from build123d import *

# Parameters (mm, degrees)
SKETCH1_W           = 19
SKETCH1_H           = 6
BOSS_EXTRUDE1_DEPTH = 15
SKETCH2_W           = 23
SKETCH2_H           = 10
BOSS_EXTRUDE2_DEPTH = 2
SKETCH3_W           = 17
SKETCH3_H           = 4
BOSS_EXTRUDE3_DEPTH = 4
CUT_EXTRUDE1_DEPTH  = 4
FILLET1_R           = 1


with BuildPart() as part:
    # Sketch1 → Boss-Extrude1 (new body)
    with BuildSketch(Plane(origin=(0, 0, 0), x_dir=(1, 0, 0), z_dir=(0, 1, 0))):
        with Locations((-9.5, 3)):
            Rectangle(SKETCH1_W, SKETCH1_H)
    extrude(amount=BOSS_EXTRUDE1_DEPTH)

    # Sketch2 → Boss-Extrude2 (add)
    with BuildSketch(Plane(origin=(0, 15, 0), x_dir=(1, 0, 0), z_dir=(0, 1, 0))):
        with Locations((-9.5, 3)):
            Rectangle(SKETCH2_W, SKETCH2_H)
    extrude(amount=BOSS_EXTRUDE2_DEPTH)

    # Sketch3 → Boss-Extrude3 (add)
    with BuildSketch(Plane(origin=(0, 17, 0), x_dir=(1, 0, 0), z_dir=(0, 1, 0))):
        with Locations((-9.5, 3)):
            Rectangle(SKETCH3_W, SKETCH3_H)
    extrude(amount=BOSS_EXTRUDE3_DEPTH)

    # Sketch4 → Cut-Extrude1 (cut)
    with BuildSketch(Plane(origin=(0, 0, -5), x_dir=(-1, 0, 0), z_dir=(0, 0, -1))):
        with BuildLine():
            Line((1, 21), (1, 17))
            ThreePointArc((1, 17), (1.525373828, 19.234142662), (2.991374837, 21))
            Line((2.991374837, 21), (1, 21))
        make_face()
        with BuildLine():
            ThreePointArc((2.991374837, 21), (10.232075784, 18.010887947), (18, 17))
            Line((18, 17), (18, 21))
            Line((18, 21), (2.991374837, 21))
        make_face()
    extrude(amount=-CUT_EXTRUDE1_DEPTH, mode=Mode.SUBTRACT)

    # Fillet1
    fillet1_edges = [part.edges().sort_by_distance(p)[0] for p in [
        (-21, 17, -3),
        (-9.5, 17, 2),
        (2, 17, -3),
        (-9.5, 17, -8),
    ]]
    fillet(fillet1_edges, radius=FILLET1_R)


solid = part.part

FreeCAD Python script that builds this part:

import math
import FreeCAD as App
import Part
import Sketcher
Q = App.Units.Quantity


def edges_at(feature, points):
    """Names of the edges that pass closest to the given points."""
    edges = feature.Shape.Edges
    near = lambda p: min(range(len(edges)), key=lambda i: edges[i].distToShape(Part.Vertex(*p))[0])
    return sorted({f"Edge{near(p) + 1}" for p in points})

doc = App.newDocument("Part")
params = doc.addObject("Spreadsheet::Sheet", "Params")
for row, (alias, value) in enumerate([
    ("sketch1_width", "19 mm"),
    ("sketch1_height", "6 mm"),
    ("pad1_length", "15 mm"),
    ("sketch2_width", "23 mm"),
    ("sketch2_height", "10 mm"),
    ("pad2_length", "2 mm"),
    ("sketch3_width", "17 mm"),
    ("sketch3_height", "4 mm"),
    ("pad3_length", "4 mm"),
    ("sketch4_height", "4 mm"),
    ("pocket1_length", "4 mm"),
    ("fillet_radius", "1 mm"),
], start=1):
    params.set(f"A{row}", alias)
    params.set(f"B{row}", "=" + value)
    params.setAlias(f"B{row}", alias)

body = doc.addObject("PartDesign::Body", "Body")

sketch1 = doc.addObject("Sketcher::SketchObject", "Sketch")
body.addObject(sketch1)
sketch1.AttachmentSupport = (doc.XZ_Plane, [""])
sketch1.MapMode = "FlatFace"
sketch1.addGeometry(Part.LineSegment(App.Vector(-19, -6, 0), App.Vector(-19, 0, 0)), False)
sketch1.addGeometry(Part.LineSegment(App.Vector(-19, 0, 0), App.Vector(0, 0, 0)), False)
sketch1.addGeometry(Part.LineSegment(App.Vector(0, 0, 0), App.Vector(0, -6, 0)), False)
sketch1.addGeometry(Part.LineSegment(App.Vector(0, -6, 0), App.Vector(-19, -6, 0)), False)
sketch1.addConstraint(Sketcher.Constraint("Coincident", 0, 2, 1, 1))
sketch1.addConstraint(Sketcher.Constraint("Coincident", 1, 2, 2, 1))
sketch1.addConstraint(Sketcher.Constraint("Coincident", 2, 2, 3, 1))
sketch1.addConstraint(Sketcher.Constraint("Coincident", 3, 2, 0, 1))
sketch1.addConstraint(Sketcher.Constraint("Vertical", 0))
sketch1.addConstraint(Sketcher.Constraint("Horizontal", 1))
sketch1.addConstraint(Sketcher.Constraint("Vertical", 2))
sketch1.addConstraint(Sketcher.Constraint("Horizontal", 3))
sketch1.addConstraint(Sketcher.Constraint("Coincident", 1, 2, -1, 1))
sketch1.addConstraint(Sketcher.Constraint("DistanceX", 1, 1, 1, 2, Q("19 mm")))
sketch1.addConstraint(Sketcher.Constraint("DistanceY", 0, 1, 0, 2, Q("6 mm")))
sketch1.setExpression("Constraints[9]", "Params.sketch1_width")
sketch1.setExpression("Constraints[10]", "Params.sketch1_height")
pad1 = doc.addObject("PartDesign::Pad", "Pad")
body.addObject(pad1)
pad1.Profile = sketch1
pad1.setExpression("Length", "Params.pad1_length")
pad1.Reversed = True

sketch2 = doc.addObject("Sketcher::SketchObject", "Sketch001")
body.addObject(sketch2)
sketch2.AttachmentSupport = (doc.XZ_Plane, [""])
sketch2.MapMode = "FlatFace"
sketch2.AttachmentOffset = App.Placement(App.Vector(0, 0, -15), App.Rotation())
sketch2.addGeometry(Part.LineSegment(App.Vector(-21, -8, 0), App.Vector(-21, 2, 0)), False)
sketch2.addGeometry(Part.LineSegment(App.Vector(-21, 2, 0), App.Vector(2, 2, 0)), False)
sketch2.addGeometry(Part.LineSegment(App.Vector(2, 2, 0), App.Vector(2, -8, 0)), False)
sketch2.addGeometry(Part.LineSegment(App.Vector(2, -8, 0), App.Vector(-21, -8, 0)), False)
sketch2.addConstraint(Sketcher.Constraint("Coincident", 0, 2, 1, 1))
sketch2.addConstraint(Sketcher.Constraint("Coincident", 1, 2, 2, 1))
sketch2.addConstraint(Sketcher.Constraint("Coincident", 2, 2, 3, 1))
sketch2.addConstraint(Sketcher.Constraint("Coincident", 3, 2, 0, 1))
sketch2.addConstraint(Sketcher.Constraint("Vertical", 0))
sketch2.addConstraint(Sketcher.Constraint("Horizontal", 1))
sketch2.addConstraint(Sketcher.Constraint("Vertical", 2))
sketch2.addConstraint(Sketcher.Constraint("Horizontal", 3))
sketch2.addConstraint(Sketcher.Constraint("DistanceX", 1, 1, 1, 2, Q("23 mm")))
sketch2.addConstraint(Sketcher.Constraint("DistanceY", 0, 1, 0, 2, Q("10 mm")))
sketch2.addConstraint(Sketcher.Constraint("DistanceX", 0, 2, -1, 1, Q("21 mm")))
sketch2.addConstraint(Sketcher.Constraint("DistanceY", -1, 1, 0, 2, Q("2 mm")))
sketch2.setExpression("Constraints[8]", "Params.sketch2_width")
sketch2.setExpression("Constraints[9]", "Params.sketch2_height")
pad2 = doc.addObject("PartDesign::Pad", "Pad001")
body.addObject(pad2)
pad2.Profile = sketch2
pad2.setExpression("Length", "Params.pad2_length")
pad2.Reversed = True

sketch3 = doc.addObject("Sketcher::SketchObject", "Sketch002")
body.addObject(sketch3)
sketch3.AttachmentSupport = (doc.XZ_Plane, [""])
sketch3.MapMode = "FlatFace"
sketch3.AttachmentOffset = App.Placement(App.Vector(0, 0, -17), App.Rotation())
sketch3.addGeometry(Part.LineSegment(App.Vector(-18, -5, 0), App.Vector(-18, -1, 0)), False)
sketch3.addGeometry(Part.LineSegment(App.Vector(-18, -1, 0), App.Vector(-1, -1, 0)), False)
sketch3.addGeometry(Part.LineSegment(App.Vector(-1, -1, 0), App.Vector(-1, -5, 0)), False)
sketch3.addGeometry(Part.LineSegment(App.Vector(-1, -5, 0), App.Vector(-18, -5, 0)), False)
sketch3.addConstraint(Sketcher.Constraint("Coincident", 0, 2, 1, 1))
sketch3.addConstraint(Sketcher.Constraint("Coincident", 1, 2, 2, 1))
sketch3.addConstraint(Sketcher.Constraint("Coincident", 2, 2, 3, 1))
sketch3.addConstraint(Sketcher.Constraint("Coincident", 3, 2, 0, 1))
sketch3.addConstraint(Sketcher.Constraint("Vertical", 0))
sketch3.addConstraint(Sketcher.Constraint("Horizontal", 1))
sketch3.addConstraint(Sketcher.Constraint("Vertical", 2))
sketch3.addConstraint(Sketcher.Constraint("Horizontal", 3))
sketch3.addConstraint(Sketcher.Constraint("DistanceX", 1, 1, 1, 2, Q("17 mm")))
sketch3.addConstraint(Sketcher.Constraint("DistanceY", 0, 1, 0, 2, Q("4 mm")))
sketch3.addConstraint(Sketcher.Constraint("DistanceX", 0, 2, -1, 1, Q("18 mm")))
sketch3.addConstraint(Sketcher.Constraint("DistanceY", 0, 2, -1, 1, Q("1 mm")))
sketch3.setExpression("Constraints[8]", "Params.sketch3_width")
sketch3.setExpression("Constraints[9]", "Params.sketch3_height")
pad3 = doc.addObject("PartDesign::Pad", "Pad002")
body.addObject(pad3)
pad3.Profile = sketch3
pad3.setExpression("Length", "Params.pad3_length")
pad3.Reversed = True

sketch4 = doc.addObject("Sketcher::SketchObject", "Sketch003")
body.addObject(sketch4)
sketch4.AttachmentSupport = (doc.XY_Plane, [""])
sketch4.MapMode = "FlatFace"
sketch4.AttachmentOffset = App.Placement(App.Vector(0, 0, -5), App.Rotation())
sketch4.addGeometry(Part.LineSegment(App.Vector(-1, 21, 0), App.Vector(-1, 17, 0)), False)
sketch4.addGeometry(Part.ArcOfCircle(Part.Circle(App.Vector(-6, 17, 0), App.Vector(0, 0, 1), 5), math.radians(0), math.radians(53)), False)
sketch4.addGeometry(Part.LineSegment(App.Vector(-3, 21, 0), App.Vector(-1, 21, 0)), False)
sketch4.addGeometry(Part.ArcOfCircle(Part.Circle(App.Vector(-18, 47, 0), App.Vector(0, 0, 1), 30), math.radians(-90), math.radians(-60)), False)
sketch4.addGeometry(Part.LineSegment(App.Vector(-18, 17, 0), App.Vector(-18, 21, 0)), False)
sketch4.addGeometry(Part.LineSegment(App.Vector(-18, 21, 0), App.Vector(-3, 21, 0)), False)
sketch4.addConstraint(Sketcher.Constraint("Tangent", 0, 2, 1, 1))
sketch4.addConstraint(Sketcher.Constraint("Coincident", 1, 2, 2, 1))
sketch4.addConstraint(Sketcher.Constraint("Coincident", 2, 2, 0, 1))
sketch4.addConstraint(Sketcher.Constraint("Coincident", 3, 1, 4, 1))
sketch4.addConstraint(Sketcher.Constraint("Coincident", 4, 2, 5, 1))
sketch4.addConstraint(Sketcher.Constraint("Coincident", 5, 2, 3, 2))
sketch4.addConstraint(Sketcher.Constraint("Vertical", 0))
sketch4.addConstraint(Sketcher.Constraint("Horizontal", 2))
sketch4.addConstraint(Sketcher.Constraint("Vertical", 4))
sketch4.addConstraint(Sketcher.Constraint("Horizontal", 5))
sketch4.addConstraint(Sketcher.Constraint("Coincident", 5, 2, 1, 2))
sketch4.addConstraint(Sketcher.Constraint("Horizontal", 0, 2, 3, 1))
sketch4.addConstraint(Sketcher.Constraint("DistanceY", 0, 2, 0, 1, Q("4 mm")))
sketch4.addConstraint(Sketcher.Constraint("DistanceY", -1, 1, 1, 3, Q("17 mm")))
sketch4.addConstraint(Sketcher.Constraint("DistanceX", 0, 2, -1, 1, Q("1 mm")))
sketch4.addConstraint(Sketcher.Constraint("DistanceX", 3, 1, -1, 1, Q("18 mm")))
sketch4.addConstraint(Sketcher.Constraint("Radius", 3, Q("29.972789 mm")))
sketch4.addConstraint(Sketcher.Constraint("Radius", 1, Q("5.013012 mm")))
sketch4.setExpression("Constraints[12]", "Params.sketch4_height")
pocket1 = doc.addObject("PartDesign::Pocket", "Pocket")
body.addObject(pocket1)
pocket1.Profile = sketch4
pocket1.setExpression("Length", "Params.pocket1_length")
pocket1.Reversed = True
doc.recompute()

fillet = doc.addObject("PartDesign::Fillet", "Fillet")
body.addObject(fillet)
fillet.Base = (pocket1, edges_at(pocket1, [
    (-21, 17, -3),
    (-9.5, 17, 2),
    (2, 17, -3),
    (-9.5, 17, -8),
]))
fillet.setExpression("Radius", "Params.fillet_radius")

doc.recompute()
